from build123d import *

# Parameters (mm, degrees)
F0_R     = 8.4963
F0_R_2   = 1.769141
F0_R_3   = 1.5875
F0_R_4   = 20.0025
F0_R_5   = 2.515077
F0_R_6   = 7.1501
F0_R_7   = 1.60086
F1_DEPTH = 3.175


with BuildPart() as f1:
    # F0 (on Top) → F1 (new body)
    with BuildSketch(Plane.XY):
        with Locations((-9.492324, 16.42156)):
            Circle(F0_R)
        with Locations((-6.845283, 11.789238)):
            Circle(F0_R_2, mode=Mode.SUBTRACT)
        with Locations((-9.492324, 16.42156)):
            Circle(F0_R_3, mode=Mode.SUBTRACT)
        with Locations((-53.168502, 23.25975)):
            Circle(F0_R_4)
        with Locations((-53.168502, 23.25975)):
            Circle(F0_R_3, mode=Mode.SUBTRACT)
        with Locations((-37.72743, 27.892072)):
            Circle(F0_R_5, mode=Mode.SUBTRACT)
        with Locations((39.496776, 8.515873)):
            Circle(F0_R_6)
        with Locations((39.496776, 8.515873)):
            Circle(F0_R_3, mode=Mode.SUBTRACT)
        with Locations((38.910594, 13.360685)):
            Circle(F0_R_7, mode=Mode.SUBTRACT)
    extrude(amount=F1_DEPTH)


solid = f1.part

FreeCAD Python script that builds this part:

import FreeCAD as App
import Part
import Sketcher

V = App.Vector
Q = App.Units.Quantity

doc = App.newDocument("Part")
body = doc.addObject("PartDesign::Body", "Body")
body.AllowCompound = True

# Sketch on XY plane
sketch1 = body.newObject("Sketcher::SketchObject", "Sketch")
sketch1.AttachmentSupport = (doc.getObject("XY_Plane"), [""])
sketch1.MapMode = "FlatFace"
sketch1.addGeometry([
    Part.Circle(V(-9.5, 16.4, 0), V(0, 0, 1), 8.5),  # 0
    Part.Circle(V(-6.8, 11.8, 0), V(0, 0, 1), 1.8),  # 1
    Part.Circle(V(-9.5, 16.4, 0), V(0, 0, 1), 1.6),  # 2
    Part.Circle(V(-53.2, 23.3, 0), V(0, 0, 1), 20),  # 3
    Part.Circle(V(-53.2, 23.3, 0), V(0, 0, 1), 1.6),  # 4
    Part.Circle(V(-37.7, 27.9, 0), V(0, 0, 1), 2.5),  # 5
    Part.Circle(V(39.5, 8.5, 0), V(0, 0, 1), 7.2),  # 6
    Part.Circle(V(39.5, 8.5, 0), V(0, 0, 1), 1.6),  # 7
    Part.Circle(V(38.9, 13.4, 0), V(0, 0, 1), 1.6),  # 8
], False)
sketch1.addConstraint([
    Sketcher.Constraint("Coincident", 2, 3, 0, 3),
    Sketcher.Constraint("Coincident", 4, 3, 3, 3),
    Sketcher.Constraint("Coincident", 7, 3, 6, 3),
    Sketcher.Constraint("Equal", 2, 4),
    Sketcher.Constraint("Equal", 4, 7),
    Sketcher.Constraint("Diameter", 0, Q("0.669 in")),
    Sketcher.Constraint("Diameter", 2, Q("0.125 in")),
    Sketcher.Constraint("Diameter", 3, Q("1.575 in")),
    Sketcher.Constraint("Diameter", 6, Q("0.563 in")),
    Sketcher.Constraint("Diameter", 8, 3.20172),
    Sketcher.Constraint("Diameter", 1, 3.538282),
    Sketcher.Constraint("Diameter", 5, 5.030154),
    Sketcher.Constraint("DistanceX", 3, 3, -1, 1, 53.168502),
    Sketcher.Constraint("DistanceX", 0, 3, 6, 3, 48.9891),
    Sketcher.Constraint("DistanceY", 6, 3, 5, 3, 19.376199),
    Sketcher.Constraint("DistanceY", -1, 1, 0, 3, 16.42156),
    Sketcher.Constraint("DistanceY", -1, 1, 3, 3, 23.25975),
    Sketcher.Constraint("DistanceX", 5, 3, -1, 1, 37.72743),
    Sketcher.Constraint("DistanceY", -1, 1, 5, 3, 27.892072),
    Sketcher.Constraint("DistanceX", 0, 3, 1, 3, 2.647041),
    Sketcher.Constraint("DistanceX", 3, 3, 1, 3, 46.323219),
    Sketcher.Constraint("DistanceX", 8, 3, 6, 3, 0.586182),
    Sketcher.Constraint("DistanceY", -1, 1, 1, 3, 11.789238),
    Sketcher.Constraint("DistanceY", -1, 1, 8, 3, 13.360685),
])
pad1 = body.newObject("PartDesign::Pad", "Pad")
pad1.Profile = sketch1
pad1.Length = Q("0.125 in")

doc.recompute()
